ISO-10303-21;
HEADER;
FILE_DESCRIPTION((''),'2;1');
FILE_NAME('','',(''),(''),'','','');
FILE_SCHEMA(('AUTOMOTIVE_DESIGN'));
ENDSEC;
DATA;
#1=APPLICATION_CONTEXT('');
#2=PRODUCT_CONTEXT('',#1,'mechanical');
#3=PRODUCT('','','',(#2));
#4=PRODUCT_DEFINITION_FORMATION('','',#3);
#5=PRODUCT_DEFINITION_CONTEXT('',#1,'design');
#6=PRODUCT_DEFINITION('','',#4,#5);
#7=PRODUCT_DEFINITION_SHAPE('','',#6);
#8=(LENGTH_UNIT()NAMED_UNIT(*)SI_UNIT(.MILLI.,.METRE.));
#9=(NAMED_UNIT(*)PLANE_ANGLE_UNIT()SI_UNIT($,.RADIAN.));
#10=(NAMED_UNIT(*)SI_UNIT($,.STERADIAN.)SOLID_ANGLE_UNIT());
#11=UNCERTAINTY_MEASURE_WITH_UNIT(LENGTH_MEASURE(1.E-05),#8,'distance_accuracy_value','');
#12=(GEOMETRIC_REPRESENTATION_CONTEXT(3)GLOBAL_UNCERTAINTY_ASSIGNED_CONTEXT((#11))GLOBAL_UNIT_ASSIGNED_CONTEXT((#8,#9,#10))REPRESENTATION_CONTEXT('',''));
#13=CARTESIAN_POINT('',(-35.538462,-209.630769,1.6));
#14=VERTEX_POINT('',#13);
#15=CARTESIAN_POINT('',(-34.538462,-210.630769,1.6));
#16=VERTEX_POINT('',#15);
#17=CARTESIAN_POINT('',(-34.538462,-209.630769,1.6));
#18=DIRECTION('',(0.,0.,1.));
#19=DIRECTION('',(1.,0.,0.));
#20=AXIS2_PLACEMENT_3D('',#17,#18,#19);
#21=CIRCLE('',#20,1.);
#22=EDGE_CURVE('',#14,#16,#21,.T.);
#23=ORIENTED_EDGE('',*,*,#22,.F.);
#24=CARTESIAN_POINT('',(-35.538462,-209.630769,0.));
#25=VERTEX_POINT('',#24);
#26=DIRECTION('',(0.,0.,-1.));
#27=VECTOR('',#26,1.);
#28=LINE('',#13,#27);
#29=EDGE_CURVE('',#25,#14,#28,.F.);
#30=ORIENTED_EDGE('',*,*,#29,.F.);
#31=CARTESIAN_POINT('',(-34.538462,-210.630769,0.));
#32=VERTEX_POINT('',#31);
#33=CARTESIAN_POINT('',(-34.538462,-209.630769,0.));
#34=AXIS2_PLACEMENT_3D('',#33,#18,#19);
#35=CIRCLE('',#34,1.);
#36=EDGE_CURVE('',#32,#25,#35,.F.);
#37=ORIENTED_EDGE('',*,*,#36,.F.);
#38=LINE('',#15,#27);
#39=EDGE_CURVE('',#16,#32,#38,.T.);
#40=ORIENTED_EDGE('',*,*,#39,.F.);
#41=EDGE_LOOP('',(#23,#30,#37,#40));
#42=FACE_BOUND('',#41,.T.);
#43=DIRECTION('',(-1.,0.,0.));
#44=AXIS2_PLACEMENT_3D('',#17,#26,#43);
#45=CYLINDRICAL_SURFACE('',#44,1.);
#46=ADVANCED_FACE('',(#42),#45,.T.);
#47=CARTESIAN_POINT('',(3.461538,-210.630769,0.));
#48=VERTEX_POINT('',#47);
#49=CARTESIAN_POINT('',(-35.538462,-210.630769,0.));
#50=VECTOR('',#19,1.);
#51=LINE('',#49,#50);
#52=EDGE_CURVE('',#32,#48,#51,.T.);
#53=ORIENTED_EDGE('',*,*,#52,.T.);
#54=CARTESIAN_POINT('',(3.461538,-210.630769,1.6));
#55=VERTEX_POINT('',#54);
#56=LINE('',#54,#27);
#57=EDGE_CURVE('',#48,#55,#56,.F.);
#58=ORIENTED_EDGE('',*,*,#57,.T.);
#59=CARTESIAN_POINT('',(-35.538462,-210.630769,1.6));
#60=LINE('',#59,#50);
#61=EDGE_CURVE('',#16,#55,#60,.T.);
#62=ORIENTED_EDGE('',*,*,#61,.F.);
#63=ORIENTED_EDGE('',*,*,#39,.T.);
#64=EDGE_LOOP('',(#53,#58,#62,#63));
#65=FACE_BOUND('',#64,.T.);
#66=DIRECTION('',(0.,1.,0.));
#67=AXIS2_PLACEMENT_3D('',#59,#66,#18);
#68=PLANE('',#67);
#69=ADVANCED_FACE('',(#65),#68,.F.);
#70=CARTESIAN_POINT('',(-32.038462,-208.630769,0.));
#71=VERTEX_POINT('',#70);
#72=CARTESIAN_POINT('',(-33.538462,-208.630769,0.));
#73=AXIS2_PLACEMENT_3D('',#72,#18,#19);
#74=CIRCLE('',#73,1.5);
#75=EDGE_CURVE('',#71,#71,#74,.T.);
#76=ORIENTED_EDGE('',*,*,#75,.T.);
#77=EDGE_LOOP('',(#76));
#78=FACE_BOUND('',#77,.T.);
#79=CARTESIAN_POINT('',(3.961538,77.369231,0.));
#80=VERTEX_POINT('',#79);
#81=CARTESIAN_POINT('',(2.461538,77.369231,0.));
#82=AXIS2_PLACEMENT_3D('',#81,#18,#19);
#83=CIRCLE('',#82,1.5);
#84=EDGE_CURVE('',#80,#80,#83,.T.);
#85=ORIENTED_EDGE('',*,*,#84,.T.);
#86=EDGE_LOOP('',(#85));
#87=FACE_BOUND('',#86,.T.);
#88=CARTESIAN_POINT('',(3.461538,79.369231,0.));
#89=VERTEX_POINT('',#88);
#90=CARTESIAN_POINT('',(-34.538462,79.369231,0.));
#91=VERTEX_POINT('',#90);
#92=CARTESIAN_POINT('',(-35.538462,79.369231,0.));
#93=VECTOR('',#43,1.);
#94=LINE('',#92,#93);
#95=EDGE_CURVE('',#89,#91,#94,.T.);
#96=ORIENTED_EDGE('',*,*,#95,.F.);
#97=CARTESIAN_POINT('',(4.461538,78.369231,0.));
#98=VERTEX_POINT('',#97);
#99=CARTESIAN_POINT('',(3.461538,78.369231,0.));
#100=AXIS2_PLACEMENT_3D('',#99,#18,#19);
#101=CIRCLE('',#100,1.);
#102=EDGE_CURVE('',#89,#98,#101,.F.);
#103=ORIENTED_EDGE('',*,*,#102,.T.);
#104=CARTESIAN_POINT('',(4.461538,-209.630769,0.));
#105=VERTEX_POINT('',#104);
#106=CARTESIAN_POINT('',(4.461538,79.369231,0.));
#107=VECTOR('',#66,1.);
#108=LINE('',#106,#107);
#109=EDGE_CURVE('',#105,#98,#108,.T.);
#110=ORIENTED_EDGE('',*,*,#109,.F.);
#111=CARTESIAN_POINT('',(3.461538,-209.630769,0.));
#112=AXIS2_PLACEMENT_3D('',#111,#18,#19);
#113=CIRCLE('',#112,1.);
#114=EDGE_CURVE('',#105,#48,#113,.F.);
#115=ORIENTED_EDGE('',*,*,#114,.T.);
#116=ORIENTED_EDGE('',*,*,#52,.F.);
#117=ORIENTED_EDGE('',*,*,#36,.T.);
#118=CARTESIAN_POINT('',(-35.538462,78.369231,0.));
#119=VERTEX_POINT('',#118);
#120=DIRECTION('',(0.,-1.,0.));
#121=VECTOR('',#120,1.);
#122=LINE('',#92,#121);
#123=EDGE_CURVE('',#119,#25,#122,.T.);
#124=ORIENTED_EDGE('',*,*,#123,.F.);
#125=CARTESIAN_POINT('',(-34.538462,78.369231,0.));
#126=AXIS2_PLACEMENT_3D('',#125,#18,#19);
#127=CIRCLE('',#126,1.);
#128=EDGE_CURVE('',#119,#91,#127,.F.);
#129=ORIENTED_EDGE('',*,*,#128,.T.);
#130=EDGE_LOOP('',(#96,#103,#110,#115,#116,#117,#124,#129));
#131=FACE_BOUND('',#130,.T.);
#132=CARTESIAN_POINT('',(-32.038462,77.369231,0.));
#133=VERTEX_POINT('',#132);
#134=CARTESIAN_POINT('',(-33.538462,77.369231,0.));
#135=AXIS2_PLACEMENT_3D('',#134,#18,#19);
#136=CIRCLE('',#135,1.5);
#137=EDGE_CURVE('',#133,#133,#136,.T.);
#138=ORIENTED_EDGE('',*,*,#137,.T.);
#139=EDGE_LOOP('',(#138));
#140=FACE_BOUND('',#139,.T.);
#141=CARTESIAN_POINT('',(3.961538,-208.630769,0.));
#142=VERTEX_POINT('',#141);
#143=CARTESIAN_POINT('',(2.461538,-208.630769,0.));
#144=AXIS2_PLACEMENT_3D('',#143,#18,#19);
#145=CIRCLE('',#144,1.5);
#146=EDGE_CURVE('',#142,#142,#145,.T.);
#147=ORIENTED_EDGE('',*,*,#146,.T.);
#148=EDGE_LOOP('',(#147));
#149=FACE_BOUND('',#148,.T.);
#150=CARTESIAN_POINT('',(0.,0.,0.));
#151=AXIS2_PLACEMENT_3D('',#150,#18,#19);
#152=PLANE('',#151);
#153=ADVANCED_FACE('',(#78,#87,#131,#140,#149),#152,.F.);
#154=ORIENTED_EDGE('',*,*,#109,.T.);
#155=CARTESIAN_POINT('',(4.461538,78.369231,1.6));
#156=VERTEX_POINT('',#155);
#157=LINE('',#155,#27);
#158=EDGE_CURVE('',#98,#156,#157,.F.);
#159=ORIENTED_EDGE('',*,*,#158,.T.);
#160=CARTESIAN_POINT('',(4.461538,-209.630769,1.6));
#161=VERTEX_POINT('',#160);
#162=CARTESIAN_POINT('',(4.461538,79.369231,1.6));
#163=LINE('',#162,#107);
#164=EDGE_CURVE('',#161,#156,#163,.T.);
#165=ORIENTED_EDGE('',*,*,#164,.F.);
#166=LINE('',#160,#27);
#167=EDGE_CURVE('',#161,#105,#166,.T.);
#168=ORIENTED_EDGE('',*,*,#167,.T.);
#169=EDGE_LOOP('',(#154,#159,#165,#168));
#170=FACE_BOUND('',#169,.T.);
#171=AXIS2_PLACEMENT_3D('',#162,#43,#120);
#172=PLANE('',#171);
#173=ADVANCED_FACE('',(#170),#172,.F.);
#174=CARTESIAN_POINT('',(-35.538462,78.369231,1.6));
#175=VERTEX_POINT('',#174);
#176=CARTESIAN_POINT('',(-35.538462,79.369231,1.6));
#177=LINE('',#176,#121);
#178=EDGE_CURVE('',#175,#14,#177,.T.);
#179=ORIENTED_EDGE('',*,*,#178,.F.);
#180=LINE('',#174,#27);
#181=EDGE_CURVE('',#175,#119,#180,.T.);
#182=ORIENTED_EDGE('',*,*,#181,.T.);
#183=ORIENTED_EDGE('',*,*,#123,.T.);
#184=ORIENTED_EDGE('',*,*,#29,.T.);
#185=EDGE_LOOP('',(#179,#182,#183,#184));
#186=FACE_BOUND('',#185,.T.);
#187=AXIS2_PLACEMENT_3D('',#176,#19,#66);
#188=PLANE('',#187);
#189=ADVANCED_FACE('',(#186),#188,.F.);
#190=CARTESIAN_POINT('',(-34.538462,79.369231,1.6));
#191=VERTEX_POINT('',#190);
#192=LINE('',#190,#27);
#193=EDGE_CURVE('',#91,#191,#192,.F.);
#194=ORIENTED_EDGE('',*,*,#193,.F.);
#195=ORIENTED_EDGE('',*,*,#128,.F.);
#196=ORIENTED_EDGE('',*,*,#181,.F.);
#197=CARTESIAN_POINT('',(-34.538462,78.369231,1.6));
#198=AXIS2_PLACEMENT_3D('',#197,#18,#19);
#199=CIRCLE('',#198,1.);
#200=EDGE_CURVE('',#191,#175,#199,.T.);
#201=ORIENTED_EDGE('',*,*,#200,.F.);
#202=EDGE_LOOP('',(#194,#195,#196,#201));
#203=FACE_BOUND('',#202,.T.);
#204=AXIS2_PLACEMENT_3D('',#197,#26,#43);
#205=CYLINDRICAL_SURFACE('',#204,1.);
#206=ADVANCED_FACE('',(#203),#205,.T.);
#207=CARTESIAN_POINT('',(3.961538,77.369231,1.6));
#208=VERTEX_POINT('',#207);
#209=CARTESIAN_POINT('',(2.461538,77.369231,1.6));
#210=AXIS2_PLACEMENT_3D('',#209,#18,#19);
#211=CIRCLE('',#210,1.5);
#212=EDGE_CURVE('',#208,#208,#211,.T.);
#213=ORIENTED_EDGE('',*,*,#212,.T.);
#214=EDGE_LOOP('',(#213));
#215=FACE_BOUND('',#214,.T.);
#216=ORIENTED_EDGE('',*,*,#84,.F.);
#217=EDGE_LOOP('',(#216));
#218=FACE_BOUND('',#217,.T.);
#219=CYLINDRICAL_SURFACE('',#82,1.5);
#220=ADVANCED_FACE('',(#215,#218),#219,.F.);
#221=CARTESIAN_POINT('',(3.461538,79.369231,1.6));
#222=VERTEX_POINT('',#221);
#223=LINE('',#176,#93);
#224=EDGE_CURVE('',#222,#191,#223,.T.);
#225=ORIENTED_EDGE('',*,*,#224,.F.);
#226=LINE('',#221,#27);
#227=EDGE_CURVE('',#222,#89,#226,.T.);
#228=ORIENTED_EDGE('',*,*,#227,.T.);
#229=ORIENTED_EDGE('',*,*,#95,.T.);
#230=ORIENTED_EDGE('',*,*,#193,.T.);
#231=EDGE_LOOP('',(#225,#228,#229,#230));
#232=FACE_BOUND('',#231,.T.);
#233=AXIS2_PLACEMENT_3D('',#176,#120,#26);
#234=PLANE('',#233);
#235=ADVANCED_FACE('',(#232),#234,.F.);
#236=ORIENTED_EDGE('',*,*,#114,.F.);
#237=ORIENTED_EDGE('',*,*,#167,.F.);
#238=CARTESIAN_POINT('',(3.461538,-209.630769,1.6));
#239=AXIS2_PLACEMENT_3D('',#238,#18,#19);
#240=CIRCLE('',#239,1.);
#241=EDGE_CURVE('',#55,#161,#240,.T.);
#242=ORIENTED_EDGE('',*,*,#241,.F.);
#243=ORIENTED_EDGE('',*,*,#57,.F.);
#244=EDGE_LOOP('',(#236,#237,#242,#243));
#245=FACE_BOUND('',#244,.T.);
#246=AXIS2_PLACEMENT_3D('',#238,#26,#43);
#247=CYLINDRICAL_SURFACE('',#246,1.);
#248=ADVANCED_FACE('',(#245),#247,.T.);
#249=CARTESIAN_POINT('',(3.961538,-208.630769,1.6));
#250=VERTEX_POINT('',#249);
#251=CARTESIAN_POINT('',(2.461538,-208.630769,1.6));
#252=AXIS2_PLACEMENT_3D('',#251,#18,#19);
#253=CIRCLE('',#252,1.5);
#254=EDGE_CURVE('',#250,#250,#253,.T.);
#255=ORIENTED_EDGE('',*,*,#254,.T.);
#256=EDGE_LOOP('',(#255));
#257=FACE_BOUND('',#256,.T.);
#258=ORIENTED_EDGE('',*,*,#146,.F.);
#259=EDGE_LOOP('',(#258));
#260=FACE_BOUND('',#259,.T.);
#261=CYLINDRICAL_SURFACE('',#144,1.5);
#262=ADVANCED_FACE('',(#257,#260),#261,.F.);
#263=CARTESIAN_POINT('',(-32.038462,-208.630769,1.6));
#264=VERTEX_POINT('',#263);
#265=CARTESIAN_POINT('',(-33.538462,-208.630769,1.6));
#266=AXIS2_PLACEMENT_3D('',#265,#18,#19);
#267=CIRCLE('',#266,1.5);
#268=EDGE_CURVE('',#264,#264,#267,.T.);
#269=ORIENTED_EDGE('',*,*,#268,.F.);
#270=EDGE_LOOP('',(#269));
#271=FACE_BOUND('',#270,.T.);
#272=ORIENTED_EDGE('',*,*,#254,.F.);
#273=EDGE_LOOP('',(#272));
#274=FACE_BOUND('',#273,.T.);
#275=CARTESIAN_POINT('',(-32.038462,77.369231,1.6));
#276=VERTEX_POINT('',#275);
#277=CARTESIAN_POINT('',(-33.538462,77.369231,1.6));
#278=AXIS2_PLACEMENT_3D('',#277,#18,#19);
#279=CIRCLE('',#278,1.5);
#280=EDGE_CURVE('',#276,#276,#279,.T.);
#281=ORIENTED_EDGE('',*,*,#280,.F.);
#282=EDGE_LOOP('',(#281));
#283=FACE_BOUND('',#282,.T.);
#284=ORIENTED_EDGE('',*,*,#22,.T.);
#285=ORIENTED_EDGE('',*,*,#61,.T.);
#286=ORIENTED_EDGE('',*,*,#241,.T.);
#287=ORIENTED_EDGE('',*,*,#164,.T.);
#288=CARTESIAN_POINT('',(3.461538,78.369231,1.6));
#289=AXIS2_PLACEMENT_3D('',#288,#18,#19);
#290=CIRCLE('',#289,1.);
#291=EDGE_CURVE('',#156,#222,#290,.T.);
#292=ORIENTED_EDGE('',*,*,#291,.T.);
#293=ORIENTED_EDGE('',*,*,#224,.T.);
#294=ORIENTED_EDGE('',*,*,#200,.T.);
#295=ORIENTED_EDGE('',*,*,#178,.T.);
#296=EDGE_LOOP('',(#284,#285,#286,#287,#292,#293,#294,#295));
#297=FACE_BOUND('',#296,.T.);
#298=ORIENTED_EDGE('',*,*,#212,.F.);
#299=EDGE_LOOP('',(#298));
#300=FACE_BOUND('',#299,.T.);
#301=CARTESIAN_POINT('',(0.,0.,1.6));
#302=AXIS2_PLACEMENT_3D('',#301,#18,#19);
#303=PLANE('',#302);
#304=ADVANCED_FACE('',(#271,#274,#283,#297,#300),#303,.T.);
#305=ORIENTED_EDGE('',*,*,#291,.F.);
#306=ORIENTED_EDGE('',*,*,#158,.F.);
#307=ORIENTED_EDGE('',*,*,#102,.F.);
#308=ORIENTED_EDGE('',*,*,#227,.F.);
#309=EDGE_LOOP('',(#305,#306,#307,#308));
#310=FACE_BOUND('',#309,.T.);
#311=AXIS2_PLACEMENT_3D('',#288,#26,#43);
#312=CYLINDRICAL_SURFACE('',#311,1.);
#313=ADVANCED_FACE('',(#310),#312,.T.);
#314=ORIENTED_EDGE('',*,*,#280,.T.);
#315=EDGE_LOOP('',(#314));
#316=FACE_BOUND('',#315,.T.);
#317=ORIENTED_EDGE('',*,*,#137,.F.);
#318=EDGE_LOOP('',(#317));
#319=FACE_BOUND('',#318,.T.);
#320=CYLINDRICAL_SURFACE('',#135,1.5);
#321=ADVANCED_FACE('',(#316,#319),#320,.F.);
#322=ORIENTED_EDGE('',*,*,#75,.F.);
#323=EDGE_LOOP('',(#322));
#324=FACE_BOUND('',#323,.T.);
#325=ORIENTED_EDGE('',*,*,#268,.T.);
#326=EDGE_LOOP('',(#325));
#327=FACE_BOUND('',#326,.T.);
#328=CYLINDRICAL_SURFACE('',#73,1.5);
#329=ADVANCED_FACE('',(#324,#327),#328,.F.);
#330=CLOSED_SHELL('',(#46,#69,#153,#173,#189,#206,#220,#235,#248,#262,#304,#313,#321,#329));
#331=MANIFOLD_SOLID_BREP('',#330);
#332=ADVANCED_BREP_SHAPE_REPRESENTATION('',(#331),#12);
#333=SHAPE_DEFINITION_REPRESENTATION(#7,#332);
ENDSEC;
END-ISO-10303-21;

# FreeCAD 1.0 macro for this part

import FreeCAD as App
import Part
import Sketcher
from FreeCAD import Vector
Q = App.Units.Quantity


def edges_at(feature, points):
    """Names of the edges that pass closest to the given points."""
    edges = feature.Shape.Edges
    near = lambda p: min(range(len(edges)), key=lambda i: edges[i].distToShape(Part.Vertex(*p))[0])
    return sorted({f"Edge{near(p) + 1}" for p in points})

doc = App.newDocument("Part")
body = doc.addObject("PartDesign::Body", "Body")

# Sketch on XY plane
sketch1 = body.newObject("Sketcher::SketchObject", "Sketch")
sketch1.AttachmentSupport = (doc.getObject("XY_Plane"), [""])
sketch1.MapMode = "FlatFace"
sketch1.addGeometry(Part.LineSegment(Vector(-36, 79, 0), Vector(-36, -211, 0)), False)
sketch1.addGeometry(Part.LineSegment(Vector(-36, -211, 0), Vector(4, -211, 0)), False)
sketch1.addGeometry(Part.LineSegment(Vector(4, -211, 0), Vector(4, 79, 0)), False)
sketch1.addGeometry(Part.LineSegment(Vector(4, 79, 0), Vector(-36, 79, 0)), False)
sketch1.addConstraint(Sketcher.Constraint("Coincident", 0, 2, 1, 1))
sketch1.addConstraint(Sketcher.Constraint("Coincident", 1, 2, 2, 1))
sketch1.addConstraint(Sketcher.Constraint("Coincident", 2, 2, 3, 1))
sketch1.addConstraint(Sketcher.Constraint("Coincident", 3, 2, 0, 1))
sketch1.addConstraint(Sketcher.Constraint("Vertical", 0))
sketch1.addConstraint(Sketcher.Constraint("Horizontal", 1))
sketch1.addConstraint(Sketcher.Constraint("Vertical", 2))
sketch1.addConstraint(Sketcher.Constraint("Horizontal", 3))
sketch1.addConstraint(Sketcher.Constraint("DistanceX", 1, 1, 1, 2, Q("40 mm")))
sketch1.addConstraint(Sketcher.Constraint("DistanceY", 0, 2, 0, 1, Q("290 mm")))
sketch1.addConstraint(Sketcher.Constraint("DistanceX", 0, 2, -1, 1, Q("35.538462 mm")))
sketch1.addConstraint(Sketcher.Constraint("DistanceY", 0, 2, -1, 1, Q("210.630769 mm")))
pad1 = body.newObject("PartDesign::Pad", "Pad")
pad1.Profile = sketch1
pad1.Length = 1.6

# Sketch on XY plane
sketch2 = body.newObject("Sketcher::SketchObject", "Sketch001")
sketch2.AttachmentSupport = (doc.getObject("XY_Plane"), [""])
sketch2.MapMode = "FlatFace"
sketch2.AttachmentOffset = App.Placement(Vector(0, 0, 1.6), App.Rotation())
sketch2.addGeometry(Part.Circle(Vector(-33.5, 77.4, 0), Vector(0, 0, 1), 1.5), False)
sketch2.addGeometry(Part.Circle(Vector(2.5, 77.4, 0), Vector(0, 0, 1), 1.5), False)
sketch2.addGeometry(Part.Circle(Vector(-33.5, -208.6, 0), Vector(0, 0, 1), 1.5), False)
sketch2.addGeometry(Part.Circle(Vector(2.5, -208.6, 0), Vector(0, 0, 1), 1.5), False)
sketch2.addConstraint(Sketcher.Constraint("Equal", 0, 1))
sketch2.addConstraint(Sketcher.Constraint("Equal", 1, 2))
sketch2.addConstraint(Sketcher.Constraint("Equal", 2, 3))
sketch2.addConstraint(Sketcher.Constraint("Horizontal", 0, 3, 1, 3))
sketch2.addConstraint(Sketcher.Constraint("Horizontal", 2, 3, 3, 3))
sketch2.addConstraint(Sketcher.Constraint("Vertical", 0, 3, 2, 3))
sketch2.addConstraint(Sketcher.Constraint("Vertical", 1, 3, 3, 3))
sketch2.addConstraint(Sketcher.Constraint("Diameter", 0, Q("3 mm")))
sketch2.addConstraint(Sketcher.Constraint("DistanceX", 0, 3, 1, 3, Q("36 mm")))
sketch2.addConstraint(Sketcher.Constraint("DistanceY", 2, 3, 0, 3, Q("286 mm")))
sketch2.addConstraint(Sketcher.Constraint("DistanceX", 0, 3, -1, 1, Q("33.538462 mm")))
sketch2.addConstraint(Sketcher.Constraint("DistanceY", -1, 1, 0, 3, Q("77.369231 mm")))
pocket1 = body.newObject("PartDesign::Pocket", "Pocket")
pocket1.Profile = sketch2
pocket1.Type = "ThroughAll"
doc.recompute()

fillet = body.newObject("PartDesign::Fillet", "Fillet")
fillet.Base = (pocket1, edges_at(pocket1, [
    (-35.538, 79.369, 0.8),
    (4.462, 79.369, 0.8),
    (4.462, -210.631, 0.8),
    (-35.538, -210.631, 0.8),
]))
fillet.Radius = 1

doc.recompute()
